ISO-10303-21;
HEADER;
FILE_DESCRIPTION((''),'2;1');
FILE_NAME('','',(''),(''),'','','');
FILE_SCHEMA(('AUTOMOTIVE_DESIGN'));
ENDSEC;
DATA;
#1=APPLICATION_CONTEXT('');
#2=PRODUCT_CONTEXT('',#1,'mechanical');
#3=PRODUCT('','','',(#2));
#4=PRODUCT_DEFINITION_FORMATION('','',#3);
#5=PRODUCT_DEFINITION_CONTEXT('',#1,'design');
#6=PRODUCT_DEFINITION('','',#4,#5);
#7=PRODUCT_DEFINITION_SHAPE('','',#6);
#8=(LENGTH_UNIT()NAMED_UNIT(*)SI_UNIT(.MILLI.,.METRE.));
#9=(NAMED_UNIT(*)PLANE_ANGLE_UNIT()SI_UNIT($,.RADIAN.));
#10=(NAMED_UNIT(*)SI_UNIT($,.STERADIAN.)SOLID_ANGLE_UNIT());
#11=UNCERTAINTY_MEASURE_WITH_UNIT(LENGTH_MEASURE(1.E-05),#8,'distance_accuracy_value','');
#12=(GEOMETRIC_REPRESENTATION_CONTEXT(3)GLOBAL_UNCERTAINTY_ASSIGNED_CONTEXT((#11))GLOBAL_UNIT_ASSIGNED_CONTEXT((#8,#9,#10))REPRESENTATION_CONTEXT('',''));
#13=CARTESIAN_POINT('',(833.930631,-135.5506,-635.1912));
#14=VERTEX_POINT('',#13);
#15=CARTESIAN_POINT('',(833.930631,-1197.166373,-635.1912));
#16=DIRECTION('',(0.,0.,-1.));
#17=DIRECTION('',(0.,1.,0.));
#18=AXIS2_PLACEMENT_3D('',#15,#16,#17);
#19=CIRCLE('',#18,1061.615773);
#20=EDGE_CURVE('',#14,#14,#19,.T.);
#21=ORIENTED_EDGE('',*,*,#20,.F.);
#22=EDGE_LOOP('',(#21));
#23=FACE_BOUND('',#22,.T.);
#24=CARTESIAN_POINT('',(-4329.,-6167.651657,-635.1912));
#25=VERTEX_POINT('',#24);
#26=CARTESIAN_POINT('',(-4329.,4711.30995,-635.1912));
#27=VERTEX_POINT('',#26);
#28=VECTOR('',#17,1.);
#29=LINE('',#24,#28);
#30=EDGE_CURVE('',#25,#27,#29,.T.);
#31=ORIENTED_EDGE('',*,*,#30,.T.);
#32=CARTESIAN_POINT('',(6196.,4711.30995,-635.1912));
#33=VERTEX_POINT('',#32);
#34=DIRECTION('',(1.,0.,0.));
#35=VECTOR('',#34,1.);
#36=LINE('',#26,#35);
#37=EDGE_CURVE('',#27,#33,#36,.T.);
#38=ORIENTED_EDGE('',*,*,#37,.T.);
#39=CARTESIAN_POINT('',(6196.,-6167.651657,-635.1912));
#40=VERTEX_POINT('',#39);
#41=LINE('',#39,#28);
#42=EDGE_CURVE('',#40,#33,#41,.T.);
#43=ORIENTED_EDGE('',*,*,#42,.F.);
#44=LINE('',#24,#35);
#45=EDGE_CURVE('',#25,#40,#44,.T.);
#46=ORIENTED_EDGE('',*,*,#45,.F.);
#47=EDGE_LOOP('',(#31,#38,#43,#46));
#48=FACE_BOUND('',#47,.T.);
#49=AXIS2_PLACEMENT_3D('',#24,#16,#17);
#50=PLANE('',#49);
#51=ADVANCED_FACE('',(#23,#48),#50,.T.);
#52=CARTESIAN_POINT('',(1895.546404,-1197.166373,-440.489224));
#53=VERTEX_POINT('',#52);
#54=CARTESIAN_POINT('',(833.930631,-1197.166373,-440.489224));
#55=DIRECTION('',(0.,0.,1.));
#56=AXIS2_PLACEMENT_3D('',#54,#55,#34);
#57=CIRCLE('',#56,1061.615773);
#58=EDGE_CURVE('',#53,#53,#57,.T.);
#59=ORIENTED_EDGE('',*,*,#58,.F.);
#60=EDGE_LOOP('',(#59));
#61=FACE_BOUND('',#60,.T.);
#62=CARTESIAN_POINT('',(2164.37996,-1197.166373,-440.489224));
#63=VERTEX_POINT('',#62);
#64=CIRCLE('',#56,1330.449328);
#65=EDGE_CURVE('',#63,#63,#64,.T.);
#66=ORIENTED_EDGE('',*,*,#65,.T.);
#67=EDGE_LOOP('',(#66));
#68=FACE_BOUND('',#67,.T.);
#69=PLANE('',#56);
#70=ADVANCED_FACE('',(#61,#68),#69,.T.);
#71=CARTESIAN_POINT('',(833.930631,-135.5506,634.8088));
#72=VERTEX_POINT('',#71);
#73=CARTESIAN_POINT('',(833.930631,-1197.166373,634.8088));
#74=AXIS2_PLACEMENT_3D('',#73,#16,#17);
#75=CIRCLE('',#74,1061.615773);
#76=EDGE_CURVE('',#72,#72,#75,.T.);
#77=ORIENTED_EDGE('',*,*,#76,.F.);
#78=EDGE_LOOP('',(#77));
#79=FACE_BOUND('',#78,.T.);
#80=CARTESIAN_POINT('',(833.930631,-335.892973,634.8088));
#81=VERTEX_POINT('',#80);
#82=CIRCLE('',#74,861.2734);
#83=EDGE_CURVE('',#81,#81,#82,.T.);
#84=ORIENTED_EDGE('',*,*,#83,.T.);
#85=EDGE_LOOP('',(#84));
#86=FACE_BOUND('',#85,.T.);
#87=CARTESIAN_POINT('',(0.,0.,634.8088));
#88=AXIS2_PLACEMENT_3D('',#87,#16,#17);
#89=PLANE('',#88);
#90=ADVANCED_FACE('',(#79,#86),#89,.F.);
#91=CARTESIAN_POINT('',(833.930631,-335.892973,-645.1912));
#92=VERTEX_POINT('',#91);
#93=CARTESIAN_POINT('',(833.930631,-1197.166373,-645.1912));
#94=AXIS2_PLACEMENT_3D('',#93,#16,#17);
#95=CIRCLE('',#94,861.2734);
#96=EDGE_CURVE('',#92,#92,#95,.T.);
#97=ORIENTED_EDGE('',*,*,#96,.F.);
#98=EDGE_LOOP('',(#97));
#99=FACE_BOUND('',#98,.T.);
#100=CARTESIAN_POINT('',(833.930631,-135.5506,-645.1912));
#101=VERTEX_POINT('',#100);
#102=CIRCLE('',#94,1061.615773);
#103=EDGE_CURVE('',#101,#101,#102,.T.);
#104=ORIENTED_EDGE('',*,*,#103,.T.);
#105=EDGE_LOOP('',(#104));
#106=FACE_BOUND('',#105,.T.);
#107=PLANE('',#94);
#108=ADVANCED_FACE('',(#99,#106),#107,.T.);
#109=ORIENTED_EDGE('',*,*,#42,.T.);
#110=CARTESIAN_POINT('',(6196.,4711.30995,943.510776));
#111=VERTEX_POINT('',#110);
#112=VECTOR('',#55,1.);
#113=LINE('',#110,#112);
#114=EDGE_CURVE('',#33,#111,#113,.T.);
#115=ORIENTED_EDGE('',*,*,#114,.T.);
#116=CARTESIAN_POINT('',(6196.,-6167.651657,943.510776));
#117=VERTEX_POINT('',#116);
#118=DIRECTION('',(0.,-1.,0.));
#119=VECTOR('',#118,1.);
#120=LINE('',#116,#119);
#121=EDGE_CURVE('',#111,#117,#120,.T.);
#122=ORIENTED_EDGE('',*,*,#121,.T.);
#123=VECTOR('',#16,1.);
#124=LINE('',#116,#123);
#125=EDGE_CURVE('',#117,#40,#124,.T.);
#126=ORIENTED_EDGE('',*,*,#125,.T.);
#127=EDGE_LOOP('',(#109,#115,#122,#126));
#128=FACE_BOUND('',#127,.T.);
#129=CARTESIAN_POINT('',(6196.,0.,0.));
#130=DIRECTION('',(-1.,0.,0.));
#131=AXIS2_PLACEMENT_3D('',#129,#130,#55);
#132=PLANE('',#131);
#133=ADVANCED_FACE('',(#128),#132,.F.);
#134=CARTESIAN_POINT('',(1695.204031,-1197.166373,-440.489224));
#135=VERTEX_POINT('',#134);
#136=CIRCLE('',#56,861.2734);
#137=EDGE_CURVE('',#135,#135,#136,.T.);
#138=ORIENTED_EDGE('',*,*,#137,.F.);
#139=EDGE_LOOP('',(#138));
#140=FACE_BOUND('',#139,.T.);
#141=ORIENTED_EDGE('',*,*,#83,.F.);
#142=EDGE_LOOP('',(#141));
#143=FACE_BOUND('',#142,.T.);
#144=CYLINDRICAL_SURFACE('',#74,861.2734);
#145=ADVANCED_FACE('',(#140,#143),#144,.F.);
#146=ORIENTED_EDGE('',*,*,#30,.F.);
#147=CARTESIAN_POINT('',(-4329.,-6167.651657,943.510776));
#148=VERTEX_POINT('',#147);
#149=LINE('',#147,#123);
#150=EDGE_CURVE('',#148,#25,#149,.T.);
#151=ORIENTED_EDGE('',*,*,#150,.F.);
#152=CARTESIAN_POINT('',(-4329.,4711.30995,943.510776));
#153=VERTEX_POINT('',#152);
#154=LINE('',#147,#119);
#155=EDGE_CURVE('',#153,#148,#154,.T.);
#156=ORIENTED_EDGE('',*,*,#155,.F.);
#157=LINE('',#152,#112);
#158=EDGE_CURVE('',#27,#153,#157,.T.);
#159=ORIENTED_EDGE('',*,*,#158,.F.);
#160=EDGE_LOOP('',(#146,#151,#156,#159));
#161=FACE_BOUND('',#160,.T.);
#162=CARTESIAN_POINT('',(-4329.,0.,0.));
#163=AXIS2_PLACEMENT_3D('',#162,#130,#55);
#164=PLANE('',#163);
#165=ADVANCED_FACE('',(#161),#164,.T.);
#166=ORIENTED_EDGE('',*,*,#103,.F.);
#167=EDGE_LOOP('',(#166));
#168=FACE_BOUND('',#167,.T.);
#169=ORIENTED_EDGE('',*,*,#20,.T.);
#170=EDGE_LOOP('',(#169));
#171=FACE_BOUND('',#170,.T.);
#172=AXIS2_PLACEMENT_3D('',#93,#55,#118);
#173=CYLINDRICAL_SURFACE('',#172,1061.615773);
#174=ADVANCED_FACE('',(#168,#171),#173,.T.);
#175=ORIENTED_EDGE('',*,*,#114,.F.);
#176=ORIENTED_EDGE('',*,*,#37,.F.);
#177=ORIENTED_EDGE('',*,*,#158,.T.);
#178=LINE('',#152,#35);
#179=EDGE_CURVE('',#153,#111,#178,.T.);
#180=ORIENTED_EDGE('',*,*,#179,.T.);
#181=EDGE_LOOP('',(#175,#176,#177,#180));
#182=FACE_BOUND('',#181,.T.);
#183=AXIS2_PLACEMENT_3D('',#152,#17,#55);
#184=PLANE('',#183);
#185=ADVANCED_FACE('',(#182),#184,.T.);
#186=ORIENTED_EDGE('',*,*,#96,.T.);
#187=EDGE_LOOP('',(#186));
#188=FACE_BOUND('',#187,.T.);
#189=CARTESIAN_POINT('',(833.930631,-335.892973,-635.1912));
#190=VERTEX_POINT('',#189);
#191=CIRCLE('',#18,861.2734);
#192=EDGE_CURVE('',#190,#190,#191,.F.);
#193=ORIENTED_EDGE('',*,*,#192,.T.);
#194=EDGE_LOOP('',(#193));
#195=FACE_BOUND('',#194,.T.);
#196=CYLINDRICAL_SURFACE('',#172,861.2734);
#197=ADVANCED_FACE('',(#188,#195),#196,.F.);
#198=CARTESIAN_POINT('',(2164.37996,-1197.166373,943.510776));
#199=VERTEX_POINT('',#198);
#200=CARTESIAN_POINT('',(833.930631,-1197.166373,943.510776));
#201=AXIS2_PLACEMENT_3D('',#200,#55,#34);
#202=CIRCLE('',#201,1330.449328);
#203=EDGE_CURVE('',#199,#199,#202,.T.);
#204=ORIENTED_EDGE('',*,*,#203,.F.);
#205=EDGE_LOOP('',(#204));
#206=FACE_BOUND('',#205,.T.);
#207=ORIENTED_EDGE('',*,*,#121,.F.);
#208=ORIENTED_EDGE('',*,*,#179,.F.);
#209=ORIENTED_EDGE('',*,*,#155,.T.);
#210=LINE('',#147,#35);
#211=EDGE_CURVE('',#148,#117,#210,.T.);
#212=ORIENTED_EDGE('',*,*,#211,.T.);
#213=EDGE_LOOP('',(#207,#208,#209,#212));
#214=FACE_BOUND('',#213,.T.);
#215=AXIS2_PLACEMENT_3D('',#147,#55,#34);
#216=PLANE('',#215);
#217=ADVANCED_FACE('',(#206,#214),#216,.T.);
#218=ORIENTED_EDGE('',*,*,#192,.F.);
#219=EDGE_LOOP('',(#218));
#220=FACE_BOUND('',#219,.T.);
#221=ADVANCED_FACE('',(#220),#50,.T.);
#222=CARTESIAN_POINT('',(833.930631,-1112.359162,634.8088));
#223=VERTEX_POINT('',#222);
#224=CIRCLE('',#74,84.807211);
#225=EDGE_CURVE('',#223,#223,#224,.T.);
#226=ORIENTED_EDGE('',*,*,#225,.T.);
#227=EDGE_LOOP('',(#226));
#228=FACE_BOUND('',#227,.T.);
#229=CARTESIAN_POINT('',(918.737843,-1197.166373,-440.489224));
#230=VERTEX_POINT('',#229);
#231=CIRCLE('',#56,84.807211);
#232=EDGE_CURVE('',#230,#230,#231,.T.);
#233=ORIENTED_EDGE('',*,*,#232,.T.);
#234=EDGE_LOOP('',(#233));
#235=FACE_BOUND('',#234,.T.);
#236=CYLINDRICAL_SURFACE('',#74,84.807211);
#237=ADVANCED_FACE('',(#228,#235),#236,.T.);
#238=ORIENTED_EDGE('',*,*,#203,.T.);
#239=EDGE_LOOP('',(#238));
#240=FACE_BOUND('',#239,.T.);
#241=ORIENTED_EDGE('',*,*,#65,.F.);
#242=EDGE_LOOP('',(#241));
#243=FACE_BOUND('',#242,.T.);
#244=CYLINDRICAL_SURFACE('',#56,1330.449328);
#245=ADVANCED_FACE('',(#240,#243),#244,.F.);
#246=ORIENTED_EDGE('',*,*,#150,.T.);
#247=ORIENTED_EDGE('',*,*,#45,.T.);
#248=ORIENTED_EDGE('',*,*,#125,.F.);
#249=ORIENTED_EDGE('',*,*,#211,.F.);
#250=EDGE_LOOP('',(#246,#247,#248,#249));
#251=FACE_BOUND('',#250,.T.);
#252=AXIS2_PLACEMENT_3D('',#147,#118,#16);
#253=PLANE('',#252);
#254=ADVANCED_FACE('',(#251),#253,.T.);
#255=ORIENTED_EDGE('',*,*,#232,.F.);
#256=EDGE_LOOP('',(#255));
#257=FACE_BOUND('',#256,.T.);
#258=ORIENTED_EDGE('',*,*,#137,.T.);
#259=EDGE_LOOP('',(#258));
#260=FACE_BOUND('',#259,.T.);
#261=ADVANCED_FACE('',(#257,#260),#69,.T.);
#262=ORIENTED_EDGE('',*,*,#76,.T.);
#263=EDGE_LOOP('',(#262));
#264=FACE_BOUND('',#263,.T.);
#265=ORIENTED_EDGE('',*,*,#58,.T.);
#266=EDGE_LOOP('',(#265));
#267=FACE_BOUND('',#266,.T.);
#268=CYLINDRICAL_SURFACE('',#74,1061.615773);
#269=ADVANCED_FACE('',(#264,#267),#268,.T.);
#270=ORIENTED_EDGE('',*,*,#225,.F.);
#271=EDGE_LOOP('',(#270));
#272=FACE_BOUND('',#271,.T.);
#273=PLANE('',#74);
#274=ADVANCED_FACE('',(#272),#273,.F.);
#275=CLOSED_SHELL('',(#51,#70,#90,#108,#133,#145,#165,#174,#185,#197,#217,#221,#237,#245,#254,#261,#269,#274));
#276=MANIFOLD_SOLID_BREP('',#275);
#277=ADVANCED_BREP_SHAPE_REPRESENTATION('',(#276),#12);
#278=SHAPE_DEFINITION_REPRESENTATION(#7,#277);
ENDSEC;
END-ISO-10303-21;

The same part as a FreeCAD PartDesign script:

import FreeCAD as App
import Part
import Sketcher

V = App.Vector
Q = App.Units.Quantity


def add_polygon(sketch, points):
    """Adds a closed chain of lines whose ends are joined by coincident constraints."""
    first, n = sketch.GeometryCount, len(points)
    for a, b in zip(points, points[1:] + points[:1]):
        sketch.addGeometry(Part.LineSegment(App.Vector(*a, 0), App.Vector(*b, 0)), False)
    for i in range(n):
        sketch.addConstraint(Sketcher.Constraint("Coincident", first + i, 2, first + (i + 1) % n, 1))

doc = App.newDocument("Part")
params = doc.addObject("Spreadsheet::Sheet", "Params")
for row, (alias, value) in enumerate([
    ("pad1_length", "6196 mm"),
    ("pad1_length2", "4329 mm"),
    ("pocket1_length", "1384 mm"),
    ("pad2_length", "1270 mm"),
    ("pad3_length", "10 mm"),
    ("pad4_length", "1270 mm"),
], start=1):
    params.set(f"A{row}", alias)
    params.set(f"B{row}", "=" + value)
    params.setAlias(f"B{row}", alias)

body = doc.addObject("PartDesign::Body", "Body")

# Sketch on YZ plane
sketch1 = body.newObject("Sketcher::SketchObject", "Sketch")
sketch1.AttachmentSupport = (doc.getObject("YZ_Plane"), [""])
sketch1.MapMode = "FlatFace"
add_polygon(sketch1, [(4711.30995, 943.510776), (-6167.651657, 943.510776), (-6167.651657, -635.191201), (4711.30995, -635.191201)])  # lines 0-3
sketch1.addConstraint(Sketcher.Constraint("Horizontal", 0))
sketch1.addConstraint(Sketcher.Constraint("Vertical", 1))
sketch1.addConstraint(Sketcher.Constraint("Horizontal", 2))
sketch1.addConstraint(Sketcher.Constraint("Vertical", 3))
sketch1.addConstraint(Sketcher.Constraint("DistanceY", 1, 2, -1, 1, Q("635.191201 mm")))
sketch1.addConstraint(Sketcher.Constraint("DistanceX", 0, 2, 0, 1, Q("10878.961606 mm")))
sketch1.addConstraint(Sketcher.Constraint("DistanceY", 1, 2, 1, 1, Q("1578.701977 mm")))
sketch1.addConstraint(Sketcher.Constraint("DistanceX", -1, 1, 2, 2, Q("4711.30995 mm")))
pad1 = body.newObject("PartDesign::Pad", "Pad")
pad1.Profile = sketch1
pad1.Type = "TwoLengths"
pad1.setExpression("Length", "Params.pad1_length")
pad1.setExpression("Length2", "Params.pad1_length2")

# Sketch on XY plane
sketch2 = body.newObject("Sketcher::SketchObject", "Sketch001")
sketch2.AttachmentSupport = (doc.getObject("XY_Plane"), [""])
sketch2.MapMode = "FlatFace"
sketch2.AttachmentOffset = App.Placement(V(0, 0, 943.510776), App.Rotation())
sketch2.addGeometry(Part.Circle(V(833.930631, -1197.166373, 0), V(0, 0, 1), 1330.449328), False)
sketch2.addConstraint(Sketcher.Constraint("Diameter", 0, Q("2660.898657 mm")))
sketch2.addConstraint(Sketcher.Constraint("DistanceX", -1, 1, 0, 3, Q("833.930631 mm")))
sketch2.addConstraint(Sketcher.Constraint("DistanceY", 0, 3, -1, 1, Q("1197.166373 mm")))
pocket1 = body.newObject("PartDesign::Pocket", "Pocket")
pocket1.Profile = sketch2
pocket1.setExpression("Length", "Params.pocket1_length")

# Sketch on XY plane
sketch3 = body.newObject("Sketcher::SketchObject", "Sketch002")
sketch3.AttachmentSupport = (doc.getObject("XY_Plane"), [""])
sketch3.MapMode = "FlatFace"
sketch3.AttachmentOffset = App.Placement(V(0, 0, -635.191201), App.Rotation())
sketch3.addGeometry(Part.Circle(V(833.930631, -1197.166373, 0), V(0, 0, 1), 84.807211), False)
sketch3.addConstraint(Sketcher.Constraint("Diameter", 0, Q("169.614423 mm")))
sketch3.addConstraint(Sketcher.Constraint("DistanceX", -1, 1, 0, 3, Q("833.930631 mm")))
sketch3.addConstraint(Sketcher.Constraint("DistanceY", 0, 3, -1, 1, Q("1197.166373 mm")))
pad2 = body.newObject("PartDesign::Pad", "Pad001")
pad2.Profile = sketch3
pad2.setExpression("Length", "Params.pad2_length")

# Sketch on XY plane
sketch4 = body.newObject("Sketcher::SketchObject", "Sketch003")
sketch4.AttachmentSupport = (doc.getObject("XY_Plane"), [""])
sketch4.MapMode = "FlatFace"
sketch4.AttachmentOffset = App.Placement(V(0, 0, -635.191201), App.Rotation())
sketch4.addGeometry(Part.Circle(V(833.930631, -1197.166373, 0), V(0, 0, 1), 1061.615773), False)
sketch4.addGeometry(Part.Circle(V(833.930631, -1197.166373, 0), V(0, 0, 1), 861.2734), False)
sketch4.addConstraint(Sketcher.Constraint("Coincident", 1, 3, 0, 3))
sketch4.addConstraint(Sketcher.Constraint("Diameter", 1, Q("1722.5468 mm")))
sketch4.addConstraint(Sketcher.Constraint("Diameter", 0, Q("2123.231545 mm")))
sketch4.addConstraint(Sketcher.Constraint("DistanceX", -1, 1, 0, 3, Q("833.930631 mm")))
sketch4.addConstraint(Sketcher.Constraint("DistanceY", 0, 3, -1, 1, Q("1197.166373 mm")))
pad3 = body.newObject("PartDesign::Pad", "Pad002")
pad3.Profile = sketch4
pad3.setExpression("Length", "Params.pad3_length")
pad3.Reversed = True

# Sketch on XY plane
sketch5 = body.newObject("Sketcher::SketchObject", "Sketch004")
sketch5.AttachmentSupport = (doc.getObject("XY_Plane"), [""])
sketch5.MapMode = "FlatFace"
sketch5.AttachmentOffset = App.Placement(V(0, 0, 634.808799), App.Rotation())
sketch5.addGeometry(Part.Circle(V(833.930631, -1197.166373, 0), V(0, 0, 1), 1061.615773), False)
sketch5.addGeometry(Part.Circle(V(833.930631, -1197.166373, 0), V(0, 0, 1), 861.2734), False)
sketch5.addConstraint(Sketcher.Constraint("Coincident", 1, 3, 0, 3))
sketch5.addConstraint(Sketcher.Constraint("Diameter", 1, Q("1722.5468 mm")))
sketch5.addConstraint(Sketcher.Constraint("Diameter", 0, Q("2123.231545 mm")))
sketch5.addConstraint(Sketcher.Constraint("DistanceX", -1, 1, 0, 3, Q("833.930631 mm")))
sketch5.addConstraint(Sketcher.Constraint("DistanceY", 0, 3, -1, 1, Q("1197.166373 mm")))
pad4 = body.newObject("PartDesign::Pad", "Pad003")
pad4.Profile = sketch5
pad4.setExpression("Length", "Params.pad4_length")
pad4.Reversed = True

doc.recompute()
